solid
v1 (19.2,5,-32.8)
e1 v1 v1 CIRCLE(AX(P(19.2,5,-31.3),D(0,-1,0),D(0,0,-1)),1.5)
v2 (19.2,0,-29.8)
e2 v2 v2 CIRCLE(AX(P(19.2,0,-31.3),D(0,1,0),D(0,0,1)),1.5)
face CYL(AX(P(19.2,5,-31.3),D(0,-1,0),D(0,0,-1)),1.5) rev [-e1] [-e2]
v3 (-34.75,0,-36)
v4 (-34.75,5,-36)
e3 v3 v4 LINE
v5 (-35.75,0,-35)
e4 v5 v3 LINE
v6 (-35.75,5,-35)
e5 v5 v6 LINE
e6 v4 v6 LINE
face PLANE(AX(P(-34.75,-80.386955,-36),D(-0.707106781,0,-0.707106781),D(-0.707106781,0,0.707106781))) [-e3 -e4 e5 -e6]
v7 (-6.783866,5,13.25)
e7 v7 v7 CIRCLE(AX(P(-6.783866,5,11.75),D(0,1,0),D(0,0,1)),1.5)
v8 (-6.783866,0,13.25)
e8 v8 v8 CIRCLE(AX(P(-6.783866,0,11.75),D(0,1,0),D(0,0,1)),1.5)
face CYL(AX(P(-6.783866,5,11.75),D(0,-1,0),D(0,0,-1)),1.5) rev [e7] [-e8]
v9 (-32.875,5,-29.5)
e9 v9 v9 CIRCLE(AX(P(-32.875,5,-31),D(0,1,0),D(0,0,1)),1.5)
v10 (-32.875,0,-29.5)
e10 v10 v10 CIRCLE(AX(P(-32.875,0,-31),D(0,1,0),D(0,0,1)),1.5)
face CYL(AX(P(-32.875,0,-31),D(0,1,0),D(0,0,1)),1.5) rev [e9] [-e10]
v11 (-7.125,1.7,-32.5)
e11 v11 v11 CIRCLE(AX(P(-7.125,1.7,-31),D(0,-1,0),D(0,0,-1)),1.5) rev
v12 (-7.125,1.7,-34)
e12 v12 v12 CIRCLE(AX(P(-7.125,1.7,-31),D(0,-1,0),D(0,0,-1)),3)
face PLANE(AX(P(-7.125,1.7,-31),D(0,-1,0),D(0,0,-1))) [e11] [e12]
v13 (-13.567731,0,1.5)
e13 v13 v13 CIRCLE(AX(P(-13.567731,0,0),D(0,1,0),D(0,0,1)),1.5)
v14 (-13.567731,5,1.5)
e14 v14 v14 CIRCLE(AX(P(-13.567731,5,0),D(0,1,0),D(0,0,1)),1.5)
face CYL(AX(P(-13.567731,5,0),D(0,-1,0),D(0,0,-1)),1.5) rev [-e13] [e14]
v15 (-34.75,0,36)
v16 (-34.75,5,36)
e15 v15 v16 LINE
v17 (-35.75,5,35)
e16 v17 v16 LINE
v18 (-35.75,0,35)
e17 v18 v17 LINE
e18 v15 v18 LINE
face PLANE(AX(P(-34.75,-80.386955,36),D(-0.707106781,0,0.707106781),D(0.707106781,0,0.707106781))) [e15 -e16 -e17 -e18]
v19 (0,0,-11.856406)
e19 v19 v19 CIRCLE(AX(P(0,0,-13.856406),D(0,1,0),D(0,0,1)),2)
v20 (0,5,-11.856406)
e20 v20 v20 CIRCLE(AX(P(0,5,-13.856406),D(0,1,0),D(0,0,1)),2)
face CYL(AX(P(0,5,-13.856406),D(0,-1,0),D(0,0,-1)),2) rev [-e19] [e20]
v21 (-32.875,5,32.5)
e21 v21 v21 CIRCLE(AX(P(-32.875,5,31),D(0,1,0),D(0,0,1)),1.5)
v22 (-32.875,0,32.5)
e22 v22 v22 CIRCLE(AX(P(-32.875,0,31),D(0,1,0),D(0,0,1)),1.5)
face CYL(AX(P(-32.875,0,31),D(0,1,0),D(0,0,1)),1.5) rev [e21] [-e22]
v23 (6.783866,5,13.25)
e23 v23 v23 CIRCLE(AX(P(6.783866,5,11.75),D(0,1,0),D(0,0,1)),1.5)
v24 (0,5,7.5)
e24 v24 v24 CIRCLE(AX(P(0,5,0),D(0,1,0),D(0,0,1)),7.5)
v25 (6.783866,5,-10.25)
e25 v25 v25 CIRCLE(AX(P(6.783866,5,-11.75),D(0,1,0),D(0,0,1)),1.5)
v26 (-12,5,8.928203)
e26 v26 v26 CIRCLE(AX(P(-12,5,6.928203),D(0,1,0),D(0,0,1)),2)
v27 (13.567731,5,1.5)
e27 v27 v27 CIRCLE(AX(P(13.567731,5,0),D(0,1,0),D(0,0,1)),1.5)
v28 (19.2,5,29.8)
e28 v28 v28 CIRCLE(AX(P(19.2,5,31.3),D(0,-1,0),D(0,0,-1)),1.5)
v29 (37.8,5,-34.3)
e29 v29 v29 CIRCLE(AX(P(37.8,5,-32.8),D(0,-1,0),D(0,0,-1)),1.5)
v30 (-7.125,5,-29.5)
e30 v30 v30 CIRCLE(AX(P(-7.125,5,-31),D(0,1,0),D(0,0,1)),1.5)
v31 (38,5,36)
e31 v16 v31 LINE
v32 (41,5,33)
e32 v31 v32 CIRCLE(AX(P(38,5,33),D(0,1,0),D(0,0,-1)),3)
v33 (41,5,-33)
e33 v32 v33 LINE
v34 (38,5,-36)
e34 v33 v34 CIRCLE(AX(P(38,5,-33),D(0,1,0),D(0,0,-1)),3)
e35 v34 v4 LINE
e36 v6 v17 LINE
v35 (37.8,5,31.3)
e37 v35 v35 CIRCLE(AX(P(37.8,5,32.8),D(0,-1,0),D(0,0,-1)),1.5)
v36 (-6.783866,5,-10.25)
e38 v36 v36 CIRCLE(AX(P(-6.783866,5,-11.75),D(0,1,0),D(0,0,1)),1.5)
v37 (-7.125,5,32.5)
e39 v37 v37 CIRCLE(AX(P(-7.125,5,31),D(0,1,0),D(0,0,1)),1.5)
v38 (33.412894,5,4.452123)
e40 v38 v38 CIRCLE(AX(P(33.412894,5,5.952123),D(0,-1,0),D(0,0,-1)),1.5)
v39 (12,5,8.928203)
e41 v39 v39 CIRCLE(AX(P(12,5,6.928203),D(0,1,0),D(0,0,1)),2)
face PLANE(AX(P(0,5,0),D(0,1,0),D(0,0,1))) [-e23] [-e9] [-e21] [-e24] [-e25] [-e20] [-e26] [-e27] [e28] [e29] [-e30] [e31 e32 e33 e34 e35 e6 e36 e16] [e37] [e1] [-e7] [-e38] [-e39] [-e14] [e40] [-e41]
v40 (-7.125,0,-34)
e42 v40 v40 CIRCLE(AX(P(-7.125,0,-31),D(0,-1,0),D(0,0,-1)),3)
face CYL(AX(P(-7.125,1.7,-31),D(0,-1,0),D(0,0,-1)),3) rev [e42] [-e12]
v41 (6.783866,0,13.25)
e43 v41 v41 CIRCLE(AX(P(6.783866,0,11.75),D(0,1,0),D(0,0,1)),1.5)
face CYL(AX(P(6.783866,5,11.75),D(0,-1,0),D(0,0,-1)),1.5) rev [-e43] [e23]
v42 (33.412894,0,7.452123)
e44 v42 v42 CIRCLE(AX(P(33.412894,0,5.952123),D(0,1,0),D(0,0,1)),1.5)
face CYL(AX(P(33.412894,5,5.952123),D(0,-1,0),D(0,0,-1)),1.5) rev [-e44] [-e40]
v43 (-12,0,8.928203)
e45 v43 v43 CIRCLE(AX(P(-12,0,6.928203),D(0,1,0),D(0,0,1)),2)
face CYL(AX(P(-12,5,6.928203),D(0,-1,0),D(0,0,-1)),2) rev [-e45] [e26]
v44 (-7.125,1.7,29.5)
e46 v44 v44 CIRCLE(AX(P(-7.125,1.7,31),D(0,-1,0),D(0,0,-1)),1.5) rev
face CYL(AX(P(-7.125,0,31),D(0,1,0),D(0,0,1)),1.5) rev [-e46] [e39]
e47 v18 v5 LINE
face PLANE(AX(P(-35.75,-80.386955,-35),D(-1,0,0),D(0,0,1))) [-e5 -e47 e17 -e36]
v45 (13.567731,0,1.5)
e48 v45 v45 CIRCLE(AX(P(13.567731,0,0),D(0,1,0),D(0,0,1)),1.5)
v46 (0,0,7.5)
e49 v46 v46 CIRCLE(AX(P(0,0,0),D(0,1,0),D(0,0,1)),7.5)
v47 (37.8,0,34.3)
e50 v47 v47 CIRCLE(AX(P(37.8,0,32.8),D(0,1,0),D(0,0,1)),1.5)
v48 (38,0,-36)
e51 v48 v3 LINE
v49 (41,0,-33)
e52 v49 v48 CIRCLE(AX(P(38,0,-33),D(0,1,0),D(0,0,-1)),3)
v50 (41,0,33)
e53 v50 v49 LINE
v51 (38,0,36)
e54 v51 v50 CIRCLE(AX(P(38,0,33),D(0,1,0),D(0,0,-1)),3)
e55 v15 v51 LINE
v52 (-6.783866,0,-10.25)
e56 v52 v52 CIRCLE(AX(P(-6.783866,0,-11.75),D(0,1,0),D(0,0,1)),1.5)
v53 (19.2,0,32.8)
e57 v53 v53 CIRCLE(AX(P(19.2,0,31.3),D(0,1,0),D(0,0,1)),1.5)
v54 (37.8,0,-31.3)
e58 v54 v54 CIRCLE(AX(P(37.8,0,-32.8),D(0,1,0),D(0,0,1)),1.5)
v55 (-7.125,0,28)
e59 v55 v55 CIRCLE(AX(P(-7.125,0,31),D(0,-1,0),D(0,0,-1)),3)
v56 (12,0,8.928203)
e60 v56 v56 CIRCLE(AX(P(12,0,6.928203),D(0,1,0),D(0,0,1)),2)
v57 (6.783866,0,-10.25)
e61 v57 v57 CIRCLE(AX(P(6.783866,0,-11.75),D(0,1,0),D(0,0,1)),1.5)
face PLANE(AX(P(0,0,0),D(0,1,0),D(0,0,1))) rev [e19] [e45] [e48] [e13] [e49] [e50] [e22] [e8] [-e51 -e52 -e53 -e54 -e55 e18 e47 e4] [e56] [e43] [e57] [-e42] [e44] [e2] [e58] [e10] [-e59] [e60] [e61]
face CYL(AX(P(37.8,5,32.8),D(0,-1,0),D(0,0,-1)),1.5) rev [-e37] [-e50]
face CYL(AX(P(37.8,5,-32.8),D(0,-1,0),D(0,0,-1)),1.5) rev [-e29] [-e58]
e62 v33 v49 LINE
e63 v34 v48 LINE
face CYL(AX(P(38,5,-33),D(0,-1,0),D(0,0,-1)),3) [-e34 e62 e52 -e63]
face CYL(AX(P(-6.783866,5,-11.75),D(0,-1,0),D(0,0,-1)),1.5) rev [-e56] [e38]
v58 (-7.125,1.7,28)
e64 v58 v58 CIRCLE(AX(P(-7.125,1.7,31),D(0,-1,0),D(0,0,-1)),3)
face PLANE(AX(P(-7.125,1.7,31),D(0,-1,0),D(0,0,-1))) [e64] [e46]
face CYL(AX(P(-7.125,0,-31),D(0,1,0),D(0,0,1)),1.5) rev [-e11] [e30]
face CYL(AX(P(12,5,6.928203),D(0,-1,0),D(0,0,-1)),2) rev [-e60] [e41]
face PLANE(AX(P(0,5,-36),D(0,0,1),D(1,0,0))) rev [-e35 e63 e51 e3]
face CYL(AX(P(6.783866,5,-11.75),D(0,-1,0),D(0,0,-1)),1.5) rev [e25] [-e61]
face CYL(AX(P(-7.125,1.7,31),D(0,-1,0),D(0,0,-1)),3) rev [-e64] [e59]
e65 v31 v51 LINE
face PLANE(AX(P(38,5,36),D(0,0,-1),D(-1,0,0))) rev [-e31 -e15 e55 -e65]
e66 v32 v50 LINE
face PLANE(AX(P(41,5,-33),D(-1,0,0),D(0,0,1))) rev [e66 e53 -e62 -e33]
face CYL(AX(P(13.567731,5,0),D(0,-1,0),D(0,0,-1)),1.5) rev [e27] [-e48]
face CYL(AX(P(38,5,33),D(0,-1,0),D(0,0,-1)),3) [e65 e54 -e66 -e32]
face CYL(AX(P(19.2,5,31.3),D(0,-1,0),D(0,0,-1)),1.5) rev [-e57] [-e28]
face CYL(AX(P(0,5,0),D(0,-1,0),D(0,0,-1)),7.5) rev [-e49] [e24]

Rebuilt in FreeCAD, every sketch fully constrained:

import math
import FreeCAD as App
import Part
import Sketcher
from FreeCAD import Vector


def add_polygon(sketch, points):
    """Adds a closed chain of lines whose ends are joined by coincident constraints."""
    first, n = sketch.GeometryCount, len(points)
    for a, b in zip(points, points[1:] + points[:1]):
        sketch.addGeometry(Part.LineSegment(App.Vector(*a, 0), App.Vector(*b, 0)), False)
    for i in range(n):
        sketch.addConstraint(Sketcher.Constraint("Coincident", first + i, 2, first + (i + 1) % n, 1))

doc = App.newDocument("Part")
body = doc.addObject("PartDesign::Body", "Body")

sketch1 = body.newObject("Sketcher::SketchObject", "Sketch")
sketch1.AttachmentSupport = (doc.getObject("XZ_Plane"), [""])
sketch1.MapMode = "FlatFace"
sketch1.addGeometry([
    Part.LineSegment(Vector(38, -36, 0), Vector(0, -36, 0)),
    Part.ArcOfCircle(Part.Circle(Vector(0, 0, 0), Vector(0, 0, 1), 36), math.radians(90), math.radians(270)),
    Part.LineSegment(Vector(0, 36, 0), Vector(38, 36, 0)),
    Part.ArcOfCircle(Part.Circle(Vector(38, 33, 0), Vector(0, 0, 1), 3), math.radians(0), math.radians(90)),
    Part.LineSegment(Vector(41, 33, 0), Vector(41, -33, 0)),
    Part.ArcOfCircle(Part.Circle(Vector(38, -33, 0), Vector(0, 0, 1), 3), math.radians(-90), math.radians(0)),
    Part.Circle(Vector(12, 6.928203, 0), Vector(0, 0, 1), 2),
    Part.Circle(Vector(6.783866, 11.75, 0), Vector(0, 0, 1), 1.5),
    Part.Circle(Vector(13.567731, 0, 0), Vector(0, 0, 1), 1.5),
    Part.Circle(Vector(0, 0, 0), Vector(0, 0, 1), 7.5),
    Part.Circle(Vector(-6.783866, 11.75, 0), Vector(0, 0, 1), 1.5),
    Part.Circle(Vector(-12, 6.928203, 0), Vector(0, 0, 1), 2),
    Part.Circle(Vector(-13.567731, 0, 0), Vector(0, 0, 1), 1.5),
    Part.Circle(Vector(6.783866, -11.75, 0), Vector(0, 0, 1), 1.5),
    Part.Circle(Vector(0, -13.856406, 0), Vector(0, 0, 1), 2),
    Part.Circle(Vector(-6.783866, -11.75, 0), Vector(0, 0, 1), 1.5),
], False)
sketch1.addConstraint([
    Sketcher.Constraint("Tangent", 0, 2, 1, 2),
    Sketcher.Constraint("Tangent", 1, 1, 2, 1),
    Sketcher.Constraint("Tangent", 2, 2, 3, 2),
    Sketcher.Constraint("Tangent", 3, 1, 4, 1),
    Sketcher.Constraint("Tangent", 4, 2, 5, 2),
    Sketcher.Constraint("Tangent", 5, 1, 0, 1),
    Sketcher.Constraint("Horizontal", 0),
    Sketcher.Constraint("Horizontal", 2),
    Sketcher.Constraint("Vertical", 4),
    Sketcher.Constraint("Coincident", 1, 3, -1, 1),
    Sketcher.Constraint("Coincident", 9, 3, -1, 1),
    Sketcher.Constraint("Equal", 3, 5),
    Sketcher.Constraint("Equal", 7, 8),
    Sketcher.Constraint("Equal", 8, 10),
    Sketcher.Constraint("Equal", 6, 11),
    Sketcher.Constraint("Equal", 10, 12),
    Sketcher.Constraint("Equal", 12, 13),
    Sketcher.Constraint("Equal", 11, 14),
    Sketcher.Constraint("Equal", 13, 15),
    Sketcher.Constraint("Symmetric", 8, 3, 12, 3, -1, 1),
    Sketcher.Constraint("Symmetric", 10, 3, 13, 3, -1, 1),
    Sketcher.Constraint("Symmetric", 7, 3, 15, 3, -1, 1),
    Sketcher.Constraint("Symmetric", 7, 3, 10, 3, -2),
    Sketcher.Constraint("Symmetric", 6, 3, 11, 3, -2),
    Sketcher.Constraint("PointOnObject", 8, 3, -1),
    Sketcher.Constraint("PointOnObject", 14, 3, -2),
    Sketcher.Constraint("Diameter", 6, 4.0),
    Sketcher.Constraint("Diameter", 7, 3.0),
    Sketcher.Constraint("Diameter", 9, 15.0),
    Sketcher.Constraint("Radius", 1, 36.0),
    Sketcher.Constraint("Radius", 3, 3.0),
    Sketcher.Constraint("DistanceX", 0, 2, 0, 1, 38.0),
    Sketcher.Constraint("DistanceX", -1, 1, 6, 3, 12.0),
    Sketcher.Constraint("DistanceY", 13, 3, 7, 3, 23.5),
    Sketcher.Constraint("DistanceX", -1, 1, 8, 3, 13.567731),
    Sketcher.Constraint("DistanceX", 10, 3, 7, 3, 13.567731),
    Sketcher.Constraint("DistanceY", -1, 1, 6, 3, 6.928203),
    Sketcher.Constraint("DistanceY", 14, 3, -1, 1, 13.856406),
])
pad1 = body.newObject("PartDesign::Pad", "Pad")
pad1.Profile = sketch1
pad1.Length = 5
pad1.Reversed = True

sketch2 = body.newObject("Sketcher::SketchObject", "Sketch001")
sketch2.AttachmentSupport = (doc.getObject("XZ_Plane"), [""])
sketch2.MapMode = "FlatFace"
sketch2.AttachmentOffset = App.Placement(Vector(0, 0, -5), App.Rotation())
sketch2.addGeometry([
    Part.LineSegment(Vector(0, -36, 0), Vector(-34.75, -36, 0)),
    Part.LineSegment(Vector(-34.75, -36, 0), Vector(-35.75, -35, 0)),
    Part.LineSegment(Vector(-35.75, -35, 0), Vector(-35.75, 35, 0)),
    Part.LineSegment(Vector(-35.75, 35, 0), Vector(-34.75, 36, 0)),
    Part.LineSegment(Vector(-34.75, 36, 0), Vector(0, 36, 0)),
    Part.ArcOfCircle(Part.Circle(Vector(1.086829, 0, 0), Vector(0, 0, 1), 36.016402), math.radians(91.729216), math.radians(268.270784)),
], False)
sketch2.addConstraint([
    Sketcher.Constraint("Coincident", 0, 2, 1, 1),
    Sketcher.Constraint("Coincident", 1, 2, 2, 1),
    Sketcher.Constraint("Coincident", 2, 2, 3, 1),
    Sketcher.Constraint("Coincident", 3, 2, 4, 1),
    Sketcher.Constraint("Coincident", 4, 2, 5, 1),
    Sketcher.Constraint("Coincident", 5, 2, 0, 1),
    Sketcher.Constraint("Horizontal", 0),
    Sketcher.Constraint("Vertical", 2),
    Sketcher.Constraint("Horizontal", 4),
    Sketcher.Constraint("Symmetric", 4, 2, 5, 2, -1, 1),
    Sketcher.Constraint("PointOnObject", 5, 3, -1),
    Sketcher.Constraint("Perpendicular", 1, 3),
    Sketcher.Constraint("Vertical", 0, 2, 3, 2),
    Sketcher.Constraint("Equal", 1, 3),
    Sketcher.Constraint("DistanceY", 2, 1, 2, 2, 70.0),
    Sketcher.Constraint("DistanceY", 0, 2, -1, 1, 36.0),
    Sketcher.Constraint("DistanceX", 0, 2, 0, 1, 34.75),
    Sketcher.Constraint("Radius", 5, 36.016402),
])
pad2 = body.newObject("PartDesign::Pad", "Pad001")
pad2.Profile = sketch2
pad2.Length = 5

sketch3 = body.newObject("Sketcher::SketchObject", "Sketch002")
sketch3.AttachmentSupport = (doc.getObject("XZ_Plane"), [""])
sketch3.MapMode = "FlatFace"
add_polygon(sketch3, [(-54.505882, 35), (-54.505882, -35), (-35.75, -35), (-35.75, 35)])
sketch3.addConstraint([
    Sketcher.Constraint("Vertical", 0),
    Sketcher.Constraint("Horizontal", 1),
    Sketcher.Constraint("Vertical", 2),
    Sketcher.Constraint("Horizontal", 3),
    Sketcher.Constraint("DistanceY", 0, 2, 0, 1, 70.0),
    Sketcher.Constraint("DistanceY", 0, 2, -1, 1, 35.0),
    Sketcher.Constraint("DistanceX", 1, 2, -1, 1, 35.75),
    Sketcher.Constraint("DistanceX", 1, 1, 1, 2, 18.755882),
])
pocket1 = body.newObject("PartDesign::Pocket", "Pocket")
pocket1.Profile = sketch3
pocket1.Type = "ThroughAll"
pocket1.Midplane = True

sketch4 = body.newObject("Sketcher::SketchObject", "Sketch003")
sketch4.AttachmentSupport = (doc.getObject("XZ_Plane"), [""])
sketch4.MapMode = "FlatFace"
sketch4.AttachmentOffset = App.Placement(Vector(0, 0, -5), App.Rotation())
sketch4.addGeometry([
    Part.Circle(Vector(-7.125, 31, 0), Vector(0, 0, 1), 1.5),
    Part.Circle(Vector(-32.875, 31, 0), Vector(0, 0, 1), 1.5),
    Part.Circle(Vector(-7.125, -31, 0), Vector(0, 0, 1), 1.5),
    Part.Circle(Vector(-32.875, -31, 0), Vector(0, 0, 1), 1.5),
], False)
sketch4.addConstraint([
    Sketcher.Constraint("Equal", 0, 1),
    Sketcher.Constraint("Equal", 1, 2),
    Sketcher.Constraint("Equal", 2, 3),
    Sketcher.Constraint("Symmetric", 0, 3, 2, 3, -1),
    Sketcher.Constraint("Symmetric", 1, 3, 3, 3, -1),
    Sketcher.Constraint("Horizontal", 0, 3, 1, 3),
    Sketcher.Constraint("Diameter", 0, 3.0),
    Sketcher.Constraint("DistanceY", -1, 1, 0, 3, 31.0),
    Sketcher.Constraint("DistanceX", 1, 3, 0, 3, 25.75),
    Sketcher.Constraint("DistanceX", 0, 3, -1, 1, 7.125),
])
pocket2 = body.newObject("PartDesign::Pocket", "Pocket001")
pocket2.Profile = sketch4
pocket2.Type = "ThroughAll"
pocket2.Midplane = True

sketch5 = body.newObject("Sketcher::SketchObject", "Sketch004")
sketch5.AttachmentSupport = (doc.getObject("XZ_Plane"), [""])
sketch5.MapMode = "FlatFace"
sketch5.addGeometry([
    Part.Circle(Vector(37.8, -32.8, 0), Vector(0, 0, 1), 1.5),
    Part.Circle(Vector(19.2, -31.3, 0), Vector(0, 0, 1), 1.5),
    Part.Circle(Vector(33.412894, 5.952123, 0), Vector(0, 0, 1), 1.5),
    Part.Circle(Vector(37.8, 32.8, 0), Vector(0, 0, 1), 1.5),
    Part.Circle(Vector(19.2, 31.3, 0), Vector(0, 0, 1), 1.5),
], False)
sketch5.addConstraint([
    Sketcher.Constraint("Equal", 0, 1),
    Sketcher.Constraint("Equal", 1, 2),
    Sketcher.Constraint("Equal", 2, 3),
    Sketcher.Constraint("Equal", 3, 4),
    Sketcher.Constraint("Symmetric", 0, 3, 3, 3, -1),
    Sketcher.Constraint("Symmetric", 1, 3, 4, 3, -1),
    Sketcher.Constraint("Diameter", 0, 3.0),
    Sketcher.Constraint("DistanceX", -1, 1, 0, 3, 37.8),
    Sketcher.Constraint("DistanceY", 0, 3, -1, 1, 32.8),
    Sketcher.Constraint("DistanceX", -1, 1, 1, 3, 19.2),
    Sketcher.Constraint("DistanceY", 1, 3, -1, 1, 31.3),
    Sketcher.Constraint("DistanceX", -1, 1, 2, 3, 33.412894),
    Sketcher.Constraint("DistanceY", -1, 1, 2, 3, 5.952123),
])
pocket3 = body.newObject("PartDesign::Pocket", "Pocket002")
pocket3.Profile = sketch5
pocket3.Type = "ThroughAll"
pocket3.Midplane = True

sketch6 = body.newObject("Sketcher::SketchObject", "Sketch005")
sketch6.AttachmentSupport = (doc.getObject("XZ_Plane"), [""])
sketch6.MapMode = "FlatFace"
sketch6.addGeometry([
    Part.Circle(Vector(-7.125, 31, 0), Vector(0, 0, 1), 3),
    Part.Circle(Vector(-7.125, -31, 0), Vector(0, 0, 1), 3),
], False)
sketch6.addConstraint([
    Sketcher.Constraint("Equal", 0, 1),
    Sketcher.Constraint("Symmetric", 0, 3, 1, 3, -1),
    Sketcher.Constraint("Diameter", 0, 6.0),
    Sketcher.Constraint("DistanceY", -1, 1, 0, 3, 31.0),
    Sketcher.Constraint("DistanceX", 0, 3, -1, 1, 7.125),
])
pocket4 = body.newObject("PartDesign::Pocket", "Pocket003")
pocket4.Profile = sketch6
pocket4.Length = 1.7

doc.recompute()
